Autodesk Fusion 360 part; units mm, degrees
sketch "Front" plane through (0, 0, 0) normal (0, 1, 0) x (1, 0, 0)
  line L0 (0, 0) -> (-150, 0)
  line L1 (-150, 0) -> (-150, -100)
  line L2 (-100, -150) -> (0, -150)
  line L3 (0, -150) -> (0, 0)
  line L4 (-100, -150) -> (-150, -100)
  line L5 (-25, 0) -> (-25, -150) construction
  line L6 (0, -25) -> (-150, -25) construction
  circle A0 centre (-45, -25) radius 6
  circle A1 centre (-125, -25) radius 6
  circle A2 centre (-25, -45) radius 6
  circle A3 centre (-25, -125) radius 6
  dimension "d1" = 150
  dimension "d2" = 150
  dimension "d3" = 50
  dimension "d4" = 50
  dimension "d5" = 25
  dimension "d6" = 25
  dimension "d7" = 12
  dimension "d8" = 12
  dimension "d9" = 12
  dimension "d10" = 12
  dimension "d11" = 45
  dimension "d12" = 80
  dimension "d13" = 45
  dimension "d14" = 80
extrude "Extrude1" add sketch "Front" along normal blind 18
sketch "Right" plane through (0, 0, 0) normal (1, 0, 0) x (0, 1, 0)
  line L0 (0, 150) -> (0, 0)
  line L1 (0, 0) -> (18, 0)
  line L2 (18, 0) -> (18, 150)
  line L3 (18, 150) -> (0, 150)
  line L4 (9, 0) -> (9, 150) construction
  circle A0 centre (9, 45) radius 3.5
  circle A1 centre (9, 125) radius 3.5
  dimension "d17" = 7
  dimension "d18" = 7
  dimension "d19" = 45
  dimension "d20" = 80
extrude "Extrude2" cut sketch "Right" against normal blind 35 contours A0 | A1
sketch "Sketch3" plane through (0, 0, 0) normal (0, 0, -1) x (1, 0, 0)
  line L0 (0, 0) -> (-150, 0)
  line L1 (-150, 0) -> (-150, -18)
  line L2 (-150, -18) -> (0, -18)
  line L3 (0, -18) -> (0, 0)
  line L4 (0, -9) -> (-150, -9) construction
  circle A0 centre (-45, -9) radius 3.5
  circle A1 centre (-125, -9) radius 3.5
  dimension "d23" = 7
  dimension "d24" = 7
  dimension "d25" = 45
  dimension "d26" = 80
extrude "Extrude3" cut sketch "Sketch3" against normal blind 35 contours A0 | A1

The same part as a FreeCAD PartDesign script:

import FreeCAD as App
import Part
import Sketcher
from FreeCAD import Vector


def add_polygon(sketch, points):
    """Adds a closed chain of lines whose ends are joined by coincident constraints."""
    first, n = sketch.GeometryCount, len(points)
    for a, b in zip(points, points[1:] + points[:1]):
        sketch.addGeometry(Part.LineSegment(App.Vector(*a, 0), App.Vector(*b, 0)), False)
    for i in range(n):
        sketch.addConstraint(Sketcher.Constraint("Coincident", first + i, 2, first + (i + 1) % n, 1))

doc = App.newDocument("Part")
params = doc.addObject("Spreadsheet::Sheet", "Params")
for row, (alias, value) in enumerate([
    ("sketch1_diameter", "12 mm"),
    ("sketch1_width", "150 mm"),
    ("pad1_length", "18 mm"),
    ("sketch2_diameter", "7 mm"),
    ("pocket1_length", "35 mm"),
    ("sketch3_diameter", "7 mm"),
    ("pocket2_length", "35 mm"),
], start=1):
    params.set(f"A{row}", alias)
    params.set(f"B{row}", "=" + value)
    params.setAlias(f"B{row}", alias)

body = doc.addObject("PartDesign::Body", "Body")

sketch1 = body.newObject("Sketcher::SketchObject", "Sketch")
sketch1.AttachmentSupport = (doc.getObject("XZ_Plane"), [""])
sketch1.MapMode = "FlatFace"
add_polygon(sketch1, [(0, 150), (0, 0), (-150, 0), (-150, 100), (-100, 150)])
sketch1.addGeometry(Part.Circle(Vector(-25, 125, 0), Vector(0, 0, 1), 6), False)
sketch1.addGeometry(Part.Circle(Vector(-125, 25, 0), Vector(0, 0, 1), 6), False)
sketch1.addGeometry(Part.Circle(Vector(-25, 45, 0), Vector(0, 0, 1), 6), False)
sketch1.addGeometry(Part.Circle(Vector(-45, 25, 0), Vector(0, 0, 1), 6), False)
sketch1.addConstraint(Sketcher.Constraint("Vertical", 0))
sketch1.addConstraint(Sketcher.Constraint("Horizontal", 1))
sketch1.addConstraint(Sketcher.Constraint("Vertical", 2))
sketch1.addConstraint(Sketcher.Constraint("Horizontal", 4))
sketch1.addConstraint(Sketcher.Constraint("Coincident", 0, 2, -1, 1))
sketch1.addConstraint(Sketcher.Constraint("Equal", 5, 6))
sketch1.addConstraint(Sketcher.Constraint("Equal", 6, 7))
sketch1.addConstraint(Sketcher.Constraint("Equal", 7, 8))
sketch1.addConstraint(Sketcher.Constraint("Horizontal", 6, 3, 8, 3))
sketch1.addConstraint(Sketcher.Constraint("Vertical", 5, 3, 7, 3))
sketch1.addConstraint(Sketcher.Constraint("Equal", 1, 0))
sketch1.addConstraint(Sketcher.Constraint("Equal", 4, 2))
sketch1.addConstraint(Sketcher.Constraint("Diameter", 5, 12.0))
sketch1.addConstraint(Sketcher.Constraint("DistanceX", 1, 2, 1, 1, 150.0))
sketch1.addConstraint(Sketcher.Constraint("DistanceX", 5, 3, -1, 1, 25.0))
sketch1.addConstraint(Sketcher.Constraint("DistanceY", -1, 1, 6, 3, 25.0))
sketch1.addConstraint(Sketcher.Constraint("DistanceY", -1, 1, 7, 3, 45.0))
sketch1.addConstraint(Sketcher.Constraint("DistanceX", 8, 3, -1, 1, 45.0))
sketch1.addConstraint(Sketcher.Constraint("DistanceY", 7, 3, 5, 3, 80.0))
sketch1.addConstraint(Sketcher.Constraint("DistanceX", 6, 3, 8, 3, 80.0))
sketch1.addConstraint(Sketcher.Constraint("DistanceY", 2, 2, 5, 3, 25.0))
sketch1.setExpression("Constraints[17]", "Params.sketch1_diameter")
sketch1.setExpression("Constraints[18]", "Params.sketch1_width")
pad1 = body.newObject("PartDesign::Pad", "Pad")
pad1.Profile = sketch1
pad1.setExpression("Length", "Params.pad1_length")
pad1.Reversed = True

sketch2 = body.newObject("Sketcher::SketchObject", "Sketch001")
sketch2.AttachmentSupport = (doc.getObject("YZ_Plane"), [""])
sketch2.MapMode = "FlatFace"
sketch2.addGeometry(Part.Circle(Vector(9, 45, 0), Vector(0, 0, 1), 3.5), False)
sketch2.addGeometry(Part.Circle(Vector(9, 125, 0), Vector(0, 0, 1), 3.5), False)
sketch2.addConstraint(Sketcher.Constraint("Equal", 0, 1))
sketch2.addConstraint(Sketcher.Constraint("Vertical", 0, 3, 1, 3))
sketch2.addConstraint(Sketcher.Constraint("Diameter", 0, 7.0))
sketch2.addConstraint(Sketcher.Constraint("DistanceY", -1, 1, 0, 3, 45.0))
sketch2.addConstraint(Sketcher.Constraint("DistanceY", 0, 3, 1, 3, 80.0))
sketch2.addConstraint(Sketcher.Constraint("DistanceX", -1, 1, 0, 3, 9.0))
sketch2.setExpression("Constraints[2]", "Params.sketch2_diameter")
pocket1 = body.newObject("PartDesign::Pocket", "Pocket")
pocket1.Profile = sketch2
pocket1.setExpression("Length", "Params.pocket1_length")

sketch3 = body.newObject("Sketcher::SketchObject", "Sketch002")
sketch3.AttachmentSupport = (doc.getObject("XY_Plane"), [""])
sketch3.MapMode = "FlatFace"
sketch3.addGeometry(Part.Circle(Vector(-45, 9, 0), Vector(0, 0, 1), 3.5), False)
sketch3.addGeometry(Part.Circle(Vector(-125, 9, 0), Vector(0, 0, 1), 3.5), False)
sketch3.addConstraint(Sketcher.Constraint("Equal", 0, 1))
sketch3.addConstraint(Sketcher.Constraint("Horizontal", 0, 3, 1, 3))
sketch3.addConstraint(Sketcher.Constraint("Diameter", 0, 7.0))
sketch3.addConstraint(Sketcher.Constraint("DistanceX", 0, 3, -1, 1, 45.0))
sketch3.addConstraint(Sketcher.Constraint("DistanceX", 1, 3, 0, 3, 80.0))
sketch3.addConstraint(Sketcher.Constraint("DistanceY", -1, 1, 0, 3, 9.0))
sketch3.setExpression("Constraints[2]", "Params.sketch3_diameter")
pocket2 = body.newObject("PartDesign::Pocket", "Pocket001")
pocket2.Profile = sketch3
pocket2.setExpression("Length", "Params.pocket2_length")
pocket2.Reversed = True

doc.recompute()
